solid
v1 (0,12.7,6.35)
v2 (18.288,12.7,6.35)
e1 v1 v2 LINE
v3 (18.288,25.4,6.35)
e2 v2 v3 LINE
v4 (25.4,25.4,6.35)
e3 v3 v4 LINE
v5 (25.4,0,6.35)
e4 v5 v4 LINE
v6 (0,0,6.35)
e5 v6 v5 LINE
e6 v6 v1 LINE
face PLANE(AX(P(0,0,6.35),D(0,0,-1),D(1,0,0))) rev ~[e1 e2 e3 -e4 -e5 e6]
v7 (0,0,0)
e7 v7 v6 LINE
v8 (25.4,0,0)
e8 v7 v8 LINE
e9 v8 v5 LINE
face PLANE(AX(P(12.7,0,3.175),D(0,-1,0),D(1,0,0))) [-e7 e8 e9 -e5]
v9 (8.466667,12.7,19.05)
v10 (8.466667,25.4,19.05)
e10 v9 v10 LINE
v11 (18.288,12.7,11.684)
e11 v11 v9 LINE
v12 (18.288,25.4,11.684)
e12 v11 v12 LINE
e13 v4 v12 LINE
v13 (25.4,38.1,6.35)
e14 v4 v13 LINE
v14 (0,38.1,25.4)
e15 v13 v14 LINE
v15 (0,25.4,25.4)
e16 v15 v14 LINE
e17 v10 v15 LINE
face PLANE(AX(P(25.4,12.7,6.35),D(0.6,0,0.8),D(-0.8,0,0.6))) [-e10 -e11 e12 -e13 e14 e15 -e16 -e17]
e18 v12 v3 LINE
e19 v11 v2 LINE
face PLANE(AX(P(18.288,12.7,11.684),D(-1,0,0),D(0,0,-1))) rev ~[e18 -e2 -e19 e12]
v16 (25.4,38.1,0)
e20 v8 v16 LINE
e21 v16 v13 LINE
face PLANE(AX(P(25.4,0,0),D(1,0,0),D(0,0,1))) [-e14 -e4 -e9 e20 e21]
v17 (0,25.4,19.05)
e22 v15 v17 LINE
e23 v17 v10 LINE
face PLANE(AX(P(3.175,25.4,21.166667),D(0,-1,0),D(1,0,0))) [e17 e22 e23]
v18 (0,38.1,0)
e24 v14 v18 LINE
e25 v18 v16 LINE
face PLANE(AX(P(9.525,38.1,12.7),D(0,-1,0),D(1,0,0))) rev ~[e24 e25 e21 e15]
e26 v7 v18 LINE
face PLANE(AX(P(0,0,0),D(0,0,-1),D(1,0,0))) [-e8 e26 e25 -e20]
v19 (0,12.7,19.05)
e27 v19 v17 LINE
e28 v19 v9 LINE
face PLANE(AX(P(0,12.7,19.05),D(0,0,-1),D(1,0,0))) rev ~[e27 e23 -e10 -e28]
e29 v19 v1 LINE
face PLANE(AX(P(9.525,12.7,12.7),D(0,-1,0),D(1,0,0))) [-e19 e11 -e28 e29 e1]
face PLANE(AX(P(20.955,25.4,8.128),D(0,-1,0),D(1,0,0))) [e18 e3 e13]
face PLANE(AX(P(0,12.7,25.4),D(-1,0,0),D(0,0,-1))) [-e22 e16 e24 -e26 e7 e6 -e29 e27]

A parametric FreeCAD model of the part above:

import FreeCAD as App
import Part
import Sketcher
from FreeCAD import Vector
Q = App.Units.Quantity

doc = App.newDocument("Part")
body = doc.addObject("PartDesign::Body", "Body")

# Sketch on XZ plane
sketch1 = body.newObject("Sketcher::SketchObject", "Sketch")
sketch1.AttachmentSupport = (doc.getObject("XZ_Plane"), [""])
sketch1.MapMode = "FlatFace"
sketch1.addGeometry([
    Part.LineSegment(Vector(0, 6, 0), Vector(0, 0, 0)),
    Part.LineSegment(Vector(0, 0, 0), Vector(25, 0, 0)),
    Part.LineSegment(Vector(25, 0, 0), Vector(25, 6, 0)),
    Part.LineSegment(Vector(25, 6, 0), Vector(0, 6, 0)),
], False)
sketch1.addConstraint([
    Sketcher.Constraint("Coincident", 0, 2, 1, 1),
    Sketcher.Constraint("Coincident", 1, 2, 2, 1),
    Sketcher.Constraint("Coincident", 2, 2, 3, 1),
    Sketcher.Constraint("Coincident", 3, 2, 0, 1),
    Sketcher.Constraint("Vertical", 0),
    Sketcher.Constraint("Horizontal", 1),
    Sketcher.Constraint("Vertical", 2),
    Sketcher.Constraint("Horizontal", 3),
    Sketcher.Constraint("Coincident", 0, 2, -1, 1),
    Sketcher.Constraint("DistanceX", 1, 1, 1, 2, Q("1 in")),
    Sketcher.Constraint("DistanceY", 0, 2, 0, 1, Q("0.25 in")),
])
pad1 = body.newObject("PartDesign::Pad", "Pad")
pad1.Profile = sketch1
pad1.Length = Q("1.5 in")
pad1.Reversed = True

# Sketch on XZ plane
sketch2 = body.newObject("Sketcher::SketchObject", "Sketch001")
sketch2.AttachmentSupport = (doc.getObject("XZ_Plane"), [""])
sketch2.MapMode = "FlatFace"
sketch2.AttachmentOffset = App.Placement(Vector(0, 0, -0.5 * 25.4), App.Rotation())
sketch2.addGeometry([
    Part.LineSegment(Vector(0, 25, 0), Vector(0, 6, 0)),
    Part.LineSegment(Vector(0, 6, 0), Vector(25, 6, 0)),
    Part.LineSegment(Vector(25, 6, 0), Vector(0, 25, 0)),
], False)
sketch2.addConstraint([
    Sketcher.Constraint("Coincident", 0, 2, 1, 1),
    Sketcher.Constraint("Coincident", 1, 2, 2, 1),
    Sketcher.Constraint("Coincident", 2, 2, 0, 1),
    Sketcher.Constraint("Vertical", 0),
    Sketcher.Constraint("Horizontal", 1),
    Sketcher.Constraint("PointOnObject", 0, 2, -2),
    Sketcher.Constraint("DistanceX", 1, 1, 1, 2, Q("1 in")),
    Sketcher.Constraint("DistanceY", -1, 1, 2, 2, Q("1 in")),
    Sketcher.Constraint("DistanceY", 0, 2, 0, 1, Q("0.75 in")),
])
pad2 = body.newObject("PartDesign::Pad", "Pad001")
pad2.Profile = sketch2
pad2.Length = Q("1 in")
pad2.Reversed = True

# Sketch on XZ plane
sketch3 = body.newObject("Sketcher::SketchObject", "Sketch002")
sketch3.AttachmentSupport = (doc.getObject("XZ_Plane"), [""])
sketch3.MapMode = "FlatFace"
sketch3.AttachmentOffset = App.Placement(Vector(0, 0, -0.5 * 25.4), App.Rotation())
sketch3.addGeometry([
    Part.LineSegment(Vector(8, 19, 0), Vector(0, 25, 0)),  # 0
    Part.LineSegment(Vector(0, 25, 0), Vector(0, 19, 0)),  # 1
    Part.LineSegment(Vector(0, 19, 0), Vector(8, 19, 0)),  # 2
    Part.LineSegment(Vector(18, 6, 0), Vector(25, 6, 0)),  # 3
    Part.LineSegment(Vector(25, 6, 0), Vector(18, 12, 0)),  # 4
    Part.LineSegment(Vector(18, 12, 0), Vector(18, 6, 0)),  # 5
], False)
sketch3.addConstraint([
    Sketcher.Constraint("Coincident", 0, 2, 1, 1),
    Sketcher.Constraint("Coincident", 1, 2, 2, 1),
    Sketcher.Constraint("Coincident", 2, 2, 0, 1),
    Sketcher.Constraint("Coincident", 3, 2, 4, 1),
    Sketcher.Constraint("Coincident", 4, 2, 5, 1),
    Sketcher.Constraint("Coincident", 5, 2, 3, 1),
    Sketcher.Constraint("Vertical", 1),
    Sketcher.Constraint("Horizontal", 2),
    Sketcher.Constraint("Horizontal", 3),
    Sketcher.Constraint("Vertical", 5),
    Sketcher.Constraint("PointOnObject", 0, 2, -2),
    Sketcher.Constraint("Parallel", 0, 4),
    Sketcher.Constraint("DistanceY", -1, 1, 0, 2, Q("1 in")),
    Sketcher.Constraint("DistanceX", -1, 1, 3, 2, Q("1 in")),
    Sketcher.Constraint("DistanceX", 3, 1, 3, 2, Q("0.28 in")),
    Sketcher.Constraint("DistanceY", 1, 2, 1, 1, Q("0.25 in")),
    Sketcher.Constraint("DistanceY", 5, 2, 5, 1, Q("0.21 in")),
    Sketcher.Constraint("DistanceY", 3, 2, 2, 2, Q("0.5 in")),
])
pocket1 = body.newObject("PartDesign::Pocket", "Pocket")
pocket1.Profile = sketch3
pocket1.Length = Q("0.5 in")

doc.recompute()
